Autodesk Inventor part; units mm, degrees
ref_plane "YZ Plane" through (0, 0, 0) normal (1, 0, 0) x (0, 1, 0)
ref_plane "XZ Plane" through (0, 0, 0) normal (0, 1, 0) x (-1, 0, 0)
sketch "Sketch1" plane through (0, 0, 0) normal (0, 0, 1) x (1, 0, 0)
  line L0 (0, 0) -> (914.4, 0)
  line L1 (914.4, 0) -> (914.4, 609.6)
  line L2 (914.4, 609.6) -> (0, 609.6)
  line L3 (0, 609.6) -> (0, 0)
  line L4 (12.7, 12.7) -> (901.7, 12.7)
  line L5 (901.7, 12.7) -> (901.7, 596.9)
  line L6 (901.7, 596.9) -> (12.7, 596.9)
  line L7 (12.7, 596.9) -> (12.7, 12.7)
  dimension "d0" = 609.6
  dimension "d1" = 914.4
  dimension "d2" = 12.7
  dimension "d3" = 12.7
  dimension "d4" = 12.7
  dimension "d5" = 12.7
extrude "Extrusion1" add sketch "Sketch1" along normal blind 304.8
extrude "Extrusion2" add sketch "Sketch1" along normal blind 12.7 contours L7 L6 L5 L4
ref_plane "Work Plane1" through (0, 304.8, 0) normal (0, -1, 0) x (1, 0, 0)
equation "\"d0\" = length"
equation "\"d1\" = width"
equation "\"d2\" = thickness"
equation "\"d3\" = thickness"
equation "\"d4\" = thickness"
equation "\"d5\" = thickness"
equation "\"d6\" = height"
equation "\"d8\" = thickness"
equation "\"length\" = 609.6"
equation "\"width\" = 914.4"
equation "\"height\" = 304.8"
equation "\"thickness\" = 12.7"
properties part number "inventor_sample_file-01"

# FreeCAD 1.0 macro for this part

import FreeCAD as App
import Part
import Sketcher
from FreeCAD import Vector
Q = App.Units.Quantity

doc = App.newDocument("Part")
body = doc.addObject("PartDesign::Body", "Body")

# Sketch on XY plane
sketch1 = body.newObject("Sketcher::SketchObject", "Sketch")
sketch1.AttachmentSupport = (doc.getObject("XY_Plane"), [""])
sketch1.MapMode = "FlatFace"
sketch1.addGeometry([
    Part.LineSegment(Vector(0, 610, 0), Vector(0, 0, 0)),  # 0
    Part.LineSegment(Vector(0, 0, 0), Vector(914, 0, 0)),  # 1
    Part.LineSegment(Vector(914, 0, 0), Vector(914, 610, 0)),  # 2
    Part.LineSegment(Vector(914, 610, 0), Vector(0, 610, 0)),  # 3
    Part.LineSegment(Vector(902, 13, 0), Vector(13, 13, 0)),  # 4
    Part.LineSegment(Vector(13, 13, 0), Vector(13, 597, 0)),  # 5
    Part.LineSegment(Vector(13, 597, 0), Vector(902, 597, 0)),  # 6
    Part.LineSegment(Vector(902, 597, 0), Vector(902, 13, 0)),  # 7
], False)
sketch1.addConstraint([
    Sketcher.Constraint("Coincident", 0, 2, 1, 1),
    Sketcher.Constraint("Coincident", 1, 2, 2, 1),
    Sketcher.Constraint("Coincident", 2, 2, 3, 1),
    Sketcher.Constraint("Coincident", 3, 2, 0, 1),
    Sketcher.Constraint("Coincident", 4, 2, 5, 1),
    Sketcher.Constraint("Coincident", 5, 2, 6, 1),
    Sketcher.Constraint("Coincident", 6, 2, 7, 1),
    Sketcher.Constraint("Coincident", 7, 2, 4, 1),
    Sketcher.Constraint("Vertical", 0),
    Sketcher.Constraint("Horizontal", 1),
    Sketcher.Constraint("Vertical", 2),
    Sketcher.Constraint("Horizontal", 3),
    Sketcher.Constraint("Horizontal", 4),
    Sketcher.Constraint("Vertical", 5),
    Sketcher.Constraint("Horizontal", 6),
    Sketcher.Constraint("Vertical", 7),
    Sketcher.Constraint("Coincident", 0, 2, -1, 1),
    Sketcher.Constraint("DistanceX", 1, 1, 1, 2, Q("36 in")),
    Sketcher.Constraint("DistanceY", 0, 2, 0, 1, Q("24 in")),
    Sketcher.Constraint("DistanceX", -1, 1, 4, 2, Q("0.5 in")),
    Sketcher.Constraint("DistanceY", -1, 1, 4, 2, Q("0.5 in")),
    Sketcher.Constraint("DistanceY", 5, 2, 3, 2, Q("0.5 in")),
    Sketcher.Constraint("DistanceX", 6, 2, 2, 2, Q("0.5 in")),
])
pad1 = body.newObject("PartDesign::Pad", "Pad")
pad1.Profile = sketch1
pad1.Length = Q("12 in")

# Sketch on XY plane
sketch2 = body.newObject("Sketcher::SketchObject", "Sketch001")
sketch2.AttachmentSupport = (doc.getObject("XY_Plane"), [""])
sketch2.MapMode = "FlatFace"
sketch2.addGeometry([
    Part.LineSegment(Vector(13, 597, 0), Vector(13, 13, 0)),
    Part.LineSegment(Vector(13, 13, 0), Vector(902, 13, 0)),
    Part.LineSegment(Vector(902, 13, 0), Vector(902, 597, 0)),
    Part.LineSegment(Vector(902, 597, 0), Vector(13, 597, 0)),
], False)
sketch2.addConstraint([
    Sketcher.Constraint("Coincident", 0, 2, 1, 1),
    Sketcher.Constraint("Coincident", 1, 2, 2, 1),
    Sketcher.Constraint("Coincident", 2, 2, 3, 1),
    Sketcher.Constraint("Coincident", 3, 2, 0, 1),
    Sketcher.Constraint("Vertical", 0),
    Sketcher.Constraint("Horizontal", 1),
    Sketcher.Constraint("Vertical", 2),
    Sketcher.Constraint("Horizontal", 3),
    Sketcher.Constraint("DistanceX", -1, 1, 0, 2, Q("0.5 in")),
    Sketcher.Constraint("DistanceY", -1, 1, 0, 2, Q("0.5 in")),
    Sketcher.Constraint("DistanceX", 1, 1, 1, 2, Q("35 in")),
    Sketcher.Constraint("DistanceY", 0, 2, 0, 1, Q("23 in")),
])
pad2 = body.newObject("PartDesign::Pad", "Pad001")
pad2.Profile = sketch2
pad2.Length = Q("0.5 in")

doc.recompute()
